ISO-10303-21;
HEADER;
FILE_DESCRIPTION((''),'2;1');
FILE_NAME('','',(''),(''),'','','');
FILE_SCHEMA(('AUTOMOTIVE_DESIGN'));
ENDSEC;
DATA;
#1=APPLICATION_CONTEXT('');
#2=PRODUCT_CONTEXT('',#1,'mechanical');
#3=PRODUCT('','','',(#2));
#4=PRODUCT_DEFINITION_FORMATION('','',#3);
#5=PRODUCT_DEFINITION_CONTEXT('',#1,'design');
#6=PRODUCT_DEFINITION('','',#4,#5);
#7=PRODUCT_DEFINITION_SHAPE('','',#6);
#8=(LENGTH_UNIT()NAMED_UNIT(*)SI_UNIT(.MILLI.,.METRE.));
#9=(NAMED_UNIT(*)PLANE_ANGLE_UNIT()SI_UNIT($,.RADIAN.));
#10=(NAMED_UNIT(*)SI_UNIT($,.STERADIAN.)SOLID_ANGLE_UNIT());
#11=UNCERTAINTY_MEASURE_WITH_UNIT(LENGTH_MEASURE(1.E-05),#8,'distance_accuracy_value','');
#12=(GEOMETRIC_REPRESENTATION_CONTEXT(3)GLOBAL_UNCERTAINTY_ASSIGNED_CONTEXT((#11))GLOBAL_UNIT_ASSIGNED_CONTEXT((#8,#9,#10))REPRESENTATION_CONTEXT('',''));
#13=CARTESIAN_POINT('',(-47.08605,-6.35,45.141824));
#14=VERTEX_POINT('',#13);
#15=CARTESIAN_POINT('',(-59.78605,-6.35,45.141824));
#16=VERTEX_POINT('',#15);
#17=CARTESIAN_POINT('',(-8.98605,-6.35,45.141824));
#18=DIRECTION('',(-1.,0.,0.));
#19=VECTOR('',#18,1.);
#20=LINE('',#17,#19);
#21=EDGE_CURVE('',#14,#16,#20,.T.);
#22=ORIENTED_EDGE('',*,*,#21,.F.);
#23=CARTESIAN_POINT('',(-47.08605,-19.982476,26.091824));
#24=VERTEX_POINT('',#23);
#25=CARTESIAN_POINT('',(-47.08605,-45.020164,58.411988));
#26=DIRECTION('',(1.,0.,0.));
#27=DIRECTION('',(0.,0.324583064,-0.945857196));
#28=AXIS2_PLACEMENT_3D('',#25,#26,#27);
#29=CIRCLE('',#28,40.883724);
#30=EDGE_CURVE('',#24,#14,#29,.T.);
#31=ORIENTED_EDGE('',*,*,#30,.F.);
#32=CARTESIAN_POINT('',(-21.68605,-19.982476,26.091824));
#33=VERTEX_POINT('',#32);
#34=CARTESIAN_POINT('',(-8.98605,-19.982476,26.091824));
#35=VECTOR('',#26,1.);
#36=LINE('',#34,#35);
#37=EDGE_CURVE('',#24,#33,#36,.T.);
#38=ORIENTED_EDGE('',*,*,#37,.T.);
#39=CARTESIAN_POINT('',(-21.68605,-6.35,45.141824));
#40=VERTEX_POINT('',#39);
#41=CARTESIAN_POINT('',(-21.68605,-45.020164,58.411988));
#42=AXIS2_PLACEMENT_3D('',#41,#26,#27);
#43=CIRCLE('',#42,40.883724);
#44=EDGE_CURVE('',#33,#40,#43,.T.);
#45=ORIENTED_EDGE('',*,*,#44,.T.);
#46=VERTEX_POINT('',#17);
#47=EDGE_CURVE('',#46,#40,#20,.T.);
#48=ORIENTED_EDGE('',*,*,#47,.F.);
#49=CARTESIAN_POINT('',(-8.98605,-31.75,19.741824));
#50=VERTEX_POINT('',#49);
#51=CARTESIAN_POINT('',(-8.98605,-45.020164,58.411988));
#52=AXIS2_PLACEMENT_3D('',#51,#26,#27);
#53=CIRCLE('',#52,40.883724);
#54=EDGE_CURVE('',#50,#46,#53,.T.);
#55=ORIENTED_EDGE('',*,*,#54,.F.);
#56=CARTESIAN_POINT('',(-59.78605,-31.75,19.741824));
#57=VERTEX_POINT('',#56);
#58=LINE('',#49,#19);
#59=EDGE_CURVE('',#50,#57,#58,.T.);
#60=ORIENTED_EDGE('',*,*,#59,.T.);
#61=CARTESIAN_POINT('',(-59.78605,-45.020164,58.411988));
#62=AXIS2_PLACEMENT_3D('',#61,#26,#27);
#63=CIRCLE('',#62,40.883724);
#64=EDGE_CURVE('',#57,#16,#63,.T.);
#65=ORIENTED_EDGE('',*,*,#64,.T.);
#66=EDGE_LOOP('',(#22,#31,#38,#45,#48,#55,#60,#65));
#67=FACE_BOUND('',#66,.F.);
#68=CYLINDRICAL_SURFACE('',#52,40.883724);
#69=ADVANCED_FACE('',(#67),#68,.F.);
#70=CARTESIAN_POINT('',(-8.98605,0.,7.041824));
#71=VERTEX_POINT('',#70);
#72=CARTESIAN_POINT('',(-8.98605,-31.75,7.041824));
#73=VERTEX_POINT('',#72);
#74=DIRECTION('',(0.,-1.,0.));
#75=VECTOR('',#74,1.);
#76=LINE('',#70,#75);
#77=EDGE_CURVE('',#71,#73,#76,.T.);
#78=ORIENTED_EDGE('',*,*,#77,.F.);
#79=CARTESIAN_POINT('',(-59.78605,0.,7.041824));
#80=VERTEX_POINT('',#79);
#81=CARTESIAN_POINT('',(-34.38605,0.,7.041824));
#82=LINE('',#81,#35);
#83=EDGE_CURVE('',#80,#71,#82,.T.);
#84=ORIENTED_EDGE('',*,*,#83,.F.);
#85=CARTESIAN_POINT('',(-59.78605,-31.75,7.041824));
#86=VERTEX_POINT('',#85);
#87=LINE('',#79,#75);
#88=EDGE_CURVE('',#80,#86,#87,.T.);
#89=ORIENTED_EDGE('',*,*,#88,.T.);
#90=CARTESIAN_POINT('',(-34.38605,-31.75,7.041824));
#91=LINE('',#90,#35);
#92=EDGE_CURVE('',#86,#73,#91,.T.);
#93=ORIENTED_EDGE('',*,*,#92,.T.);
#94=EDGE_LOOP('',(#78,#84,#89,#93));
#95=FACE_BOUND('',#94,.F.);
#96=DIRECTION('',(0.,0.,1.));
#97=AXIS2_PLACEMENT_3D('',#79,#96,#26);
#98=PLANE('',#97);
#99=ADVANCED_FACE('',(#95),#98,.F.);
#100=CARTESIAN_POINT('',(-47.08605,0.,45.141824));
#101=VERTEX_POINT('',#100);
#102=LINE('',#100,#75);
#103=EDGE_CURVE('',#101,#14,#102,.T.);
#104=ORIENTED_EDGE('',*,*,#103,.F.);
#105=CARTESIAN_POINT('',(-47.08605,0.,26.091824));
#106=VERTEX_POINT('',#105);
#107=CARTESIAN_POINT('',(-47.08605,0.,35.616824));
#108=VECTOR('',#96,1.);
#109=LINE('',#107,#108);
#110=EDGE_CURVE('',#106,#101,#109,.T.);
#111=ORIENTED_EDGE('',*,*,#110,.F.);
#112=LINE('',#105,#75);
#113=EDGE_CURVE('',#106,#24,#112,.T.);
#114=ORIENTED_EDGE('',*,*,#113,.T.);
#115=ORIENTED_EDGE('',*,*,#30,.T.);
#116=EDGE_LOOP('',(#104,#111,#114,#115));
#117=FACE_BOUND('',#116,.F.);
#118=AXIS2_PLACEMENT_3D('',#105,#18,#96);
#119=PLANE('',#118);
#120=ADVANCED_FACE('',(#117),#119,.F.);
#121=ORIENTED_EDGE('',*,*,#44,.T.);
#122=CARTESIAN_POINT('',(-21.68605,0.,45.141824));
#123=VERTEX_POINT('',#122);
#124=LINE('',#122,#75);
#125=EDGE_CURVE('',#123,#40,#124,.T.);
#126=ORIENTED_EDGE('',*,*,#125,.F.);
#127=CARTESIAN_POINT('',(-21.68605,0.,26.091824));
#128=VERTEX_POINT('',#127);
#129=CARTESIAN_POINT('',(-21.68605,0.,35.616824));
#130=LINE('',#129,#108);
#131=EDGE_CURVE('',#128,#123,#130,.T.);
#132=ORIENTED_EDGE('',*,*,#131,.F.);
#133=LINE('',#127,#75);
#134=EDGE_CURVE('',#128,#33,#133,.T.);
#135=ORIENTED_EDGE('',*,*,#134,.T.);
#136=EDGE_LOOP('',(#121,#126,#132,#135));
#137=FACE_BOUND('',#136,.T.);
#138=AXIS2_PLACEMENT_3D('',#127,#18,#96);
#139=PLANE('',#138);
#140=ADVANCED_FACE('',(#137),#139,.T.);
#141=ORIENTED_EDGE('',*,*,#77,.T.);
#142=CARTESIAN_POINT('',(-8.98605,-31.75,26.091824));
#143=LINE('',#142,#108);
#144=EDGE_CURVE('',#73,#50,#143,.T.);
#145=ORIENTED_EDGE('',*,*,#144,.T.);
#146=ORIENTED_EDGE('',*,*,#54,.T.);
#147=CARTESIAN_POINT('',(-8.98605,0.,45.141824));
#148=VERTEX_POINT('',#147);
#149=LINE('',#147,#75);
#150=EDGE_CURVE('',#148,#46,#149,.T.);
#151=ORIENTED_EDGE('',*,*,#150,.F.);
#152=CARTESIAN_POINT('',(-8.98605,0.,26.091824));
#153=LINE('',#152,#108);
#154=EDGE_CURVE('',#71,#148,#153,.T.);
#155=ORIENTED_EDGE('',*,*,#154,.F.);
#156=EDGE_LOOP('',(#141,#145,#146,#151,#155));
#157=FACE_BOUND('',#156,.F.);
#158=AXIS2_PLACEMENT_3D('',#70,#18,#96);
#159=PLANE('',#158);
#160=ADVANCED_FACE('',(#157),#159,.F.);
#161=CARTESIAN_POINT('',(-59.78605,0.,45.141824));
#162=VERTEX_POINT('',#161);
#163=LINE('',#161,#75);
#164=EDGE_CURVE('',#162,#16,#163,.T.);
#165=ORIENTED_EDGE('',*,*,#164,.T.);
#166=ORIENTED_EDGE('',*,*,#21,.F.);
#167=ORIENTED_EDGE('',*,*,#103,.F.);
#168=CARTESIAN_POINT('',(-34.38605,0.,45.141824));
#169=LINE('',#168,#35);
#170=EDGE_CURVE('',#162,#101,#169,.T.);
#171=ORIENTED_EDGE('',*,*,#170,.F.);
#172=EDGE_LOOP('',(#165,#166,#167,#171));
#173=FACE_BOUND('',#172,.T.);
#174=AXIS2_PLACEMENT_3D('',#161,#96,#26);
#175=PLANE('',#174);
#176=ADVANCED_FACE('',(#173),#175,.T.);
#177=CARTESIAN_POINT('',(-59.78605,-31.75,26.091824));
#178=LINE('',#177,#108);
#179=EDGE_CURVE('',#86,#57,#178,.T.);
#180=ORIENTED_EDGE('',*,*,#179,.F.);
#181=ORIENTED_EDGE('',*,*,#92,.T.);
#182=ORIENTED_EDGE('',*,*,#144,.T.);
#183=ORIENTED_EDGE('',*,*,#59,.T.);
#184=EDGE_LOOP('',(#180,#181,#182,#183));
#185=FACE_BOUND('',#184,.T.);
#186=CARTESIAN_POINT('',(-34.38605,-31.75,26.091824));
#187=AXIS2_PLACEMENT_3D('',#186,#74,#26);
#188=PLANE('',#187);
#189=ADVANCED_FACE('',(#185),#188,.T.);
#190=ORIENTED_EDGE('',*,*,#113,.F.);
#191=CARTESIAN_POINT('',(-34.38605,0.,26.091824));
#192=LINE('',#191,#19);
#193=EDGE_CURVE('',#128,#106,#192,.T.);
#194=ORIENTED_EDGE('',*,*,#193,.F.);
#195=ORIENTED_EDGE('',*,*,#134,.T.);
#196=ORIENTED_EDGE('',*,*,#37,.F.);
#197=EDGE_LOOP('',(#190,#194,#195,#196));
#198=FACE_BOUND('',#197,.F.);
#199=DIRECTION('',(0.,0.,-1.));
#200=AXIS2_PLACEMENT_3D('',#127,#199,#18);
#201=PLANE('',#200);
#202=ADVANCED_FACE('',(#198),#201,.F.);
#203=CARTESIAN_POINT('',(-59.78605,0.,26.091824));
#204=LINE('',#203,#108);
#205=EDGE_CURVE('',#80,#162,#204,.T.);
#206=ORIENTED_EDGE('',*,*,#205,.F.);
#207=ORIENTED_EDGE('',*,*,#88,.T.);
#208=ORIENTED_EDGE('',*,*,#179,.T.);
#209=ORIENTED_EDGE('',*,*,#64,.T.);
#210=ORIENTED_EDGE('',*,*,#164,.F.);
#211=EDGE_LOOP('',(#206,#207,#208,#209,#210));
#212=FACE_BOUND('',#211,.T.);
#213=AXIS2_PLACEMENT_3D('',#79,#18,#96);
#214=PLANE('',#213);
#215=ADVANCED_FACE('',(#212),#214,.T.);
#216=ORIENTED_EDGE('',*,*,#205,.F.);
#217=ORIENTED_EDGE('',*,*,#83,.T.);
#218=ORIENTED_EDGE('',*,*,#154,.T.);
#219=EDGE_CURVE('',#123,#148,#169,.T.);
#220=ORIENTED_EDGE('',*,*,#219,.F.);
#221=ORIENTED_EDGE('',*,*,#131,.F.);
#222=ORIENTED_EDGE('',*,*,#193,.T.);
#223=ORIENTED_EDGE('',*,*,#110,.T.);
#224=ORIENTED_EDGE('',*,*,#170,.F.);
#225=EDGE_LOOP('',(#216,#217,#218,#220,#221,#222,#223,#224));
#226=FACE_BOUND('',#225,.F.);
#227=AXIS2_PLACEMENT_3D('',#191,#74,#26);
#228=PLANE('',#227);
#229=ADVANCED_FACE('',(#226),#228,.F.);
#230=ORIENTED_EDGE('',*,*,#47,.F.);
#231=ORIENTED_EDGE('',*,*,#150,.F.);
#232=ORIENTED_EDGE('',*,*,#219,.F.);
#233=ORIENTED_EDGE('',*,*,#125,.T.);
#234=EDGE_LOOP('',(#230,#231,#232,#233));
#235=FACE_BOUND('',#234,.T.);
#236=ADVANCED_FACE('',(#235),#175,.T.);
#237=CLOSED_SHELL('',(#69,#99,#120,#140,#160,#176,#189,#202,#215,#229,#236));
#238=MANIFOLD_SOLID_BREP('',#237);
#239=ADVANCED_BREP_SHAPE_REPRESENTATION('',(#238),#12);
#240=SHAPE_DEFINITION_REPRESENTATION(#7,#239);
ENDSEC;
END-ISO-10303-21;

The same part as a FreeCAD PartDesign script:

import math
import FreeCAD as App
import Part
import Sketcher
Q = App.Units.Quantity


def add_polygon(sketch, points):
    """Adds a closed chain of lines whose ends are joined by coincident constraints."""
    first, n = sketch.GeometryCount, len(points)
    for a, b in zip(points, points[1:] + points[:1]):
        sketch.addGeometry(Part.LineSegment(App.Vector(*a, 0), App.Vector(*b, 0)), False)
    for i in range(n):
        sketch.addConstraint(Sketcher.Constraint("Coincident", first + i, 2, first + (i + 1) % n, 1))

doc = App.newDocument("Part")
body = doc.addObject("PartDesign::Body", "Body")

# Sketch on XZ plane
sketch1 = body.newObject("Sketcher::SketchObject", "Sketch")
sketch1.AttachmentSupport = (doc.getObject("XZ_Plane"), [""])
sketch1.MapMode = "FlatFace"
add_polygon(sketch1, [(-60, 45), (-60, 7), (-9, 7), (-9, 45)])  # lines 0-3
sketch1.addConstraint([
    Sketcher.Constraint("Vertical", 0),
    Sketcher.Constraint("Horizontal", 1),
    Sketcher.Constraint("Vertical", 2),
    Sketcher.Constraint("Horizontal", 3),
    Sketcher.Constraint("DistanceX", 1, 1, 1, 2, Q("2 in")),
    Sketcher.Constraint("DistanceY", 0, 2, 0, 1, Q("1.5 in")),
    Sketcher.Constraint("DistanceX", 0, 2, -1, 1, 59.78605),
    Sketcher.Constraint("DistanceY", -1, 1, 0, 2, 7.041824),
])
pad1 = body.newObject("PartDesign::Pad", "Pad")
pad1.Profile = sketch1
pad1.Length = Q("1.25 in")

# Sketch on YZ plane
sketch2 = body.newObject("Sketcher::SketchObject", "Sketch001")
sketch2.AttachmentSupport = (doc.getObject("YZ_Plane"), [""])
sketch2.MapMode = "FlatFace"
sketch2.AttachmentOffset = App.Placement(App.Vector(0, 0, -8.98605), App.Rotation())
sketch2.addGeometry([
    Part.LineSegment(App.Vector(-32, 45, 0), App.Vector(-32, 20, 0)),
    Part.ArcOfCircle(Part.Circle(App.Vector(-45, 58, 0), App.Vector(0, 0, 1), 41), math.radians(-71), math.radians(-19)),
    Part.LineSegment(App.Vector(-6, 45, 0), App.Vector(-32, 45, 0)),
], False)
sketch2.addConstraint([
    Sketcher.Constraint("Coincident", 0, 2, 1, 1),
    Sketcher.Constraint("Coincident", 1, 2, 2, 1),
    Sketcher.Constraint("Coincident", 2, 2, 0, 1),
    Sketcher.Constraint("Vertical", 0),
    Sketcher.Constraint("Horizontal", 2),
    Sketcher.Constraint("Equal", 2, 0),
    Sketcher.Constraint("DistanceX", 2, 2, 2, 1, Q("1 in")),
    Sketcher.Constraint("DistanceX", 0, 2, -1, 1, Q("1.25 in")),
    Sketcher.Constraint("Radius", 1, 40.883724),
    Sketcher.Constraint("DistanceY", -1, 1, 1, 3, 58.411988),
])
pocket1 = body.newObject("PartDesign::Pocket", "Pocket")
pocket1.Profile = sketch2
pocket1.Type = "ThroughAll"

# Sketch on XZ plane
sketch3 = body.newObject("Sketcher::SketchObject", "Sketch002")
sketch3.AttachmentSupport = (doc.getObject("XZ_Plane"), [""])
sketch3.MapMode = "FlatFace"
add_polygon(sketch3, [(-22, 45), (-22, 26), (-47, 26), (-47, 45)])  # lines 0-3
sketch3.addConstraint([
    Sketcher.Constraint("Vertical", 0),
    Sketcher.Constraint("Horizontal", 1),
    Sketcher.Constraint("Vertical", 2),
    Sketcher.Constraint("Horizontal", 3),
    Sketcher.Constraint("DistanceX", 1, 2, 1, 1, Q("1 in")),
    Sketcher.Constraint("DistanceY", 0, 2, 0, 1, Q("0.75 in")),
    Sketcher.Constraint("DistanceX", 0, 2, -1, 1, 21.68605),
    Sketcher.Constraint("DistanceY", -1, 1, 0, 2, 26.091824),
])
pocket2 = body.newObject("PartDesign::Pocket", "Pocket001")
pocket2.Profile = sketch3
pocket2.Type = "ThroughAll"
pocket2.Reversed = True

doc.recompute()
